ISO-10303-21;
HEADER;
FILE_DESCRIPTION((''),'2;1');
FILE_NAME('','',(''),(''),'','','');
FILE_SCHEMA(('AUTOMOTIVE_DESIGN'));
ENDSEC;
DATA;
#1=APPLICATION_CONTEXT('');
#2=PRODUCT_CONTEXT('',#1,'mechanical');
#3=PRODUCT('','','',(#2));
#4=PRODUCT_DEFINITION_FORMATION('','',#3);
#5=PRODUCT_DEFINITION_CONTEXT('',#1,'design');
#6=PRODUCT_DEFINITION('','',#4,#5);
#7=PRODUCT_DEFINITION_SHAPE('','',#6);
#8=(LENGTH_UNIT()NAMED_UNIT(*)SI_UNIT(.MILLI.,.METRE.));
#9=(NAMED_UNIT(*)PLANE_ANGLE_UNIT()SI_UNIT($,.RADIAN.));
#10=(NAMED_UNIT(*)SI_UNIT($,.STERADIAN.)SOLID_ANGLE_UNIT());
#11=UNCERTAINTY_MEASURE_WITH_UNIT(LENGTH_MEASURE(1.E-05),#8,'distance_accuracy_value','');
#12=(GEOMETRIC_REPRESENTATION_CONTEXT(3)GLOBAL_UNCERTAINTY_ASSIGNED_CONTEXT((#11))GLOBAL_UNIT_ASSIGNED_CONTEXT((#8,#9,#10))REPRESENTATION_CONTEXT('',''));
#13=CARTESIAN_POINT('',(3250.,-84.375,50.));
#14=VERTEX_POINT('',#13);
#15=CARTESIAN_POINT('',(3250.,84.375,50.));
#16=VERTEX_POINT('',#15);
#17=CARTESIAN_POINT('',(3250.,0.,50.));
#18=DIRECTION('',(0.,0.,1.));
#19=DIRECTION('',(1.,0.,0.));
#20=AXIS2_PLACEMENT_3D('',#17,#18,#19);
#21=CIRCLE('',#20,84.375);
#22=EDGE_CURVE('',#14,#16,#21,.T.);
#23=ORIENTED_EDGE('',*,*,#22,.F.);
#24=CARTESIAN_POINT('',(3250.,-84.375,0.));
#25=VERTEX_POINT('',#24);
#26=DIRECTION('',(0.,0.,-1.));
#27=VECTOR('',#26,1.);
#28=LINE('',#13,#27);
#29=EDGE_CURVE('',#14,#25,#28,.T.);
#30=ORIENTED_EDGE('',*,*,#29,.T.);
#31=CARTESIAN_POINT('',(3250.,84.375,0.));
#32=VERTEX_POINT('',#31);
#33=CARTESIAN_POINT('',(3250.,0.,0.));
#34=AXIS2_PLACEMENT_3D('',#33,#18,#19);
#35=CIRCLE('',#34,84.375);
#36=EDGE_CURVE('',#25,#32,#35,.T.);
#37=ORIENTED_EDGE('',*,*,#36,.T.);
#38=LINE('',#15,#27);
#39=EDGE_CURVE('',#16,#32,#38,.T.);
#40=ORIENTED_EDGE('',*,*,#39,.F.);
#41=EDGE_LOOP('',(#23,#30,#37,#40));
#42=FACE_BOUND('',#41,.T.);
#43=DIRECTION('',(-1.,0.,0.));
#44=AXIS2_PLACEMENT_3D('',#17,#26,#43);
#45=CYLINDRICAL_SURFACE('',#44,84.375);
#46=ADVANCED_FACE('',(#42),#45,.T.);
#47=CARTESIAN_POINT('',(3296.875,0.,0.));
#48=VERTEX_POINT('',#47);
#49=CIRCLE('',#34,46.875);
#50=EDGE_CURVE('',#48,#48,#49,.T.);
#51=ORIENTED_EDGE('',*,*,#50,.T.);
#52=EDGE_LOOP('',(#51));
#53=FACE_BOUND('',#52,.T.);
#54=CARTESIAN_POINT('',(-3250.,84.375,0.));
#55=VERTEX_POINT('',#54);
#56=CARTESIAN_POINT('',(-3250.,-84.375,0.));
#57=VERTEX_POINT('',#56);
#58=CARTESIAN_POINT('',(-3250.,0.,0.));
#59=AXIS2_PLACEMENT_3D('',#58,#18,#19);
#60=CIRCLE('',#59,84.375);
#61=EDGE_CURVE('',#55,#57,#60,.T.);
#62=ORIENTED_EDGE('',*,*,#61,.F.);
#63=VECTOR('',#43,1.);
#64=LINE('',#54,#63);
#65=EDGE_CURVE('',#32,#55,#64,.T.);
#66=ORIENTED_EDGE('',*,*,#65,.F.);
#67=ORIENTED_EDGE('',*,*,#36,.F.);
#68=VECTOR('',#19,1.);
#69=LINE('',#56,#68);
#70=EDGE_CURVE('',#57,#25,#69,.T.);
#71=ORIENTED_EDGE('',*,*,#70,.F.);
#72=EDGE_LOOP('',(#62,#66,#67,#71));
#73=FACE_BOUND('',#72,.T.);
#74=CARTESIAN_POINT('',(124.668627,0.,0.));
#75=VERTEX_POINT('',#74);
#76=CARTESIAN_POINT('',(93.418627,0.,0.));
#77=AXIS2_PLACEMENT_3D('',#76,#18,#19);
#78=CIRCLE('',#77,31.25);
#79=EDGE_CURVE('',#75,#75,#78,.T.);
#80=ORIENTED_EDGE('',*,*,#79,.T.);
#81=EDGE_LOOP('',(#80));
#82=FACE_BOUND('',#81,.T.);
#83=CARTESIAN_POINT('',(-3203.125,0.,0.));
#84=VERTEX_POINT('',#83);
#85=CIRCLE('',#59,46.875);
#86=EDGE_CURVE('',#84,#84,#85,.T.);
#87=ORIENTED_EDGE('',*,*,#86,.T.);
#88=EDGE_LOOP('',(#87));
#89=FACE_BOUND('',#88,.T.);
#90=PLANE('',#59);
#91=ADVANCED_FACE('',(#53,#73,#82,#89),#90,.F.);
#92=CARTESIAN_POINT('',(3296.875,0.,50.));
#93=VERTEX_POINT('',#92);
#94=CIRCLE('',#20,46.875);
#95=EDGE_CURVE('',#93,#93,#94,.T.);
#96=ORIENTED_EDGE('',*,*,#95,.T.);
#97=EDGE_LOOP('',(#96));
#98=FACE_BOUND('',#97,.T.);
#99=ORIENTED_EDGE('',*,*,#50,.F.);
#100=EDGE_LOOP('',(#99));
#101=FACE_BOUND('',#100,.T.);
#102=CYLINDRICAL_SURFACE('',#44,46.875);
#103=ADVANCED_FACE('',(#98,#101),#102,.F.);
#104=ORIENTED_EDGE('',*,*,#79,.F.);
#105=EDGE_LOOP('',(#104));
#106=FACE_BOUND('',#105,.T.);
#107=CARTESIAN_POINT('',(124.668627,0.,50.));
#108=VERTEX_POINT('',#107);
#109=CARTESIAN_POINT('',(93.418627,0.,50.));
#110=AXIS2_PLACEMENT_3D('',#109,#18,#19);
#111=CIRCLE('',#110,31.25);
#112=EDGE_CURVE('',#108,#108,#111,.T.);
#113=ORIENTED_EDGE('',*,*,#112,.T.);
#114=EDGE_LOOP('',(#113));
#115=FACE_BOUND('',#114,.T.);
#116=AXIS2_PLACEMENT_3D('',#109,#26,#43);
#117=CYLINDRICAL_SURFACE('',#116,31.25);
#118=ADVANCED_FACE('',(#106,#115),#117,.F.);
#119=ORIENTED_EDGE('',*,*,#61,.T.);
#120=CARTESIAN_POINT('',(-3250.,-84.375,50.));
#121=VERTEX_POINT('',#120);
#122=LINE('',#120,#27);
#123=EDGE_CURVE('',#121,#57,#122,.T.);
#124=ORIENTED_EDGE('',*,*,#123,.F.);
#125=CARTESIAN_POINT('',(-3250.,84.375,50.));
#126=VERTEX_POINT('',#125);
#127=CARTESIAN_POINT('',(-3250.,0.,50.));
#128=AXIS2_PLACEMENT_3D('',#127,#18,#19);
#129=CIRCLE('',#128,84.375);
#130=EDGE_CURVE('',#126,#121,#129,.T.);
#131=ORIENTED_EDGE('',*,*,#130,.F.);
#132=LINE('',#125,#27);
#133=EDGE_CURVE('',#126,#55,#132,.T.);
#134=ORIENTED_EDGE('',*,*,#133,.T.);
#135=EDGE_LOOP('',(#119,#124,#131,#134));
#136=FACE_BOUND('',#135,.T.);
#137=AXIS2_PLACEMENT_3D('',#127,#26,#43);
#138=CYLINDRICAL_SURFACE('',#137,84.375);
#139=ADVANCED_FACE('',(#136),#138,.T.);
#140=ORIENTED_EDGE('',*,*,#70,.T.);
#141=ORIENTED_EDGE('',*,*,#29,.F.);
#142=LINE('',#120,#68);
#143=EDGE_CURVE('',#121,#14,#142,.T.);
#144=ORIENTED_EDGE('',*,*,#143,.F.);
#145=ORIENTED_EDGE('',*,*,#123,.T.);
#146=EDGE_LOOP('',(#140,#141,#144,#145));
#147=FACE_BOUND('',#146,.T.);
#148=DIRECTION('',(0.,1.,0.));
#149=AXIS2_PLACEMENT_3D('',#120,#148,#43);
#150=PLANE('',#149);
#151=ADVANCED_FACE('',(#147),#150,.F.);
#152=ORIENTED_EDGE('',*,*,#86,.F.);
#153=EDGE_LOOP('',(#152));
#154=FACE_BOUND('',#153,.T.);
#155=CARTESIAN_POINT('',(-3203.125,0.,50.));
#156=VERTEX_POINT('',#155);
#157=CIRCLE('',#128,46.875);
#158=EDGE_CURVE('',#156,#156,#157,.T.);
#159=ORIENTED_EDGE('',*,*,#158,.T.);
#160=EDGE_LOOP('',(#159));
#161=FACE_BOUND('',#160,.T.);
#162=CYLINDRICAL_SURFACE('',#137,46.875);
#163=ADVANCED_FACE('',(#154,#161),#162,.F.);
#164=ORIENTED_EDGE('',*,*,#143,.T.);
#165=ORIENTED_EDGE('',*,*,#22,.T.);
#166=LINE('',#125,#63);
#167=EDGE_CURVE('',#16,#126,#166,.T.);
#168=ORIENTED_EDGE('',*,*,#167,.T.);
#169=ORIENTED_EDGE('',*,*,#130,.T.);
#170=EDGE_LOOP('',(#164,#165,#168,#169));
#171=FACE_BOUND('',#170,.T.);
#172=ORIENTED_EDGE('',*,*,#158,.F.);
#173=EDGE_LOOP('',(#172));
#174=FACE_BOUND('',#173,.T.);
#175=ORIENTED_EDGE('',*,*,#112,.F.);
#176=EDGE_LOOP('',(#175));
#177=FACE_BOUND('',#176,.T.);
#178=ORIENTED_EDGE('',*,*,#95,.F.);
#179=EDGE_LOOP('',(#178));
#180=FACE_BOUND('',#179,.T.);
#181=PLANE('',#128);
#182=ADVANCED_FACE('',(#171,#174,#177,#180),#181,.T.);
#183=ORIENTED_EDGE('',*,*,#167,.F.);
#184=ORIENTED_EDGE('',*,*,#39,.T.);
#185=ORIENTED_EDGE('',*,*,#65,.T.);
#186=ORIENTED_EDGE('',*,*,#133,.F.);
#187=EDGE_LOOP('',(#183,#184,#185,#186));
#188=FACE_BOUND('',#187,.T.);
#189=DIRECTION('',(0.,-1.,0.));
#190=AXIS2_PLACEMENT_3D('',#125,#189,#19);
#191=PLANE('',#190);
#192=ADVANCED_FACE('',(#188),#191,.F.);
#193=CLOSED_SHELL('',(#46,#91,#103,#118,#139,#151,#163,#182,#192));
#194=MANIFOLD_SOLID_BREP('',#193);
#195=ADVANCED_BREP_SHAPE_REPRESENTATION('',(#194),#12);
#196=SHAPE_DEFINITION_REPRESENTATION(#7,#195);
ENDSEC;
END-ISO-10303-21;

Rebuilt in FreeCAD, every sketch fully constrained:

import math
import FreeCAD as App
import Part
import Sketcher
from FreeCAD import Vector
Q = App.Units.Quantity

doc = App.newDocument("Part")
body = doc.addObject("PartDesign::Body", "Body")

# Sketch on XY plane
sketch1 = body.newObject("Sketcher::SketchObject", "Sketch")
sketch1.AttachmentSupport = (doc.getObject("XY_Plane"), [""])
sketch1.MapMode = "FlatFace"
sketch1.addGeometry([
    Part.LineSegment(Vector(3250, 84.375, 0), Vector(-3250, 84.375, 0)),  # 0
    Part.ArcOfCircle(Part.Circle(Vector(-3250, 0, 0), Vector(0, 0, 1), 84.375), math.radians(90), math.radians(270)),  # 1
    Part.LineSegment(Vector(-3250, -84.375, 0), Vector(3250, -84.375, 0)),  # 2
    Part.ArcOfCircle(Part.Circle(Vector(3250, 0, 0), Vector(0, 0, 1), 84.375), math.radians(-90), math.radians(90)),  # 3
    Part.Circle(Vector(3250, 0, 0), Vector(0, 0, 1), 46.875),  # 4
    Part.Circle(Vector(93.418627, 0, 0), Vector(0, 0, 1), 31.25),  # 5
    Part.Circle(Vector(-3250, 0, 0), Vector(0, 0, 1), 46.875),  # 6
], False)
sketch1.addConstraint([
    Sketcher.Constraint("Tangent", 0, 2, 1, 1),
    Sketcher.Constraint("Tangent", 1, 2, 2, 1),
    Sketcher.Constraint("Tangent", 2, 2, 3, 1),
    Sketcher.Constraint("Tangent", 3, 2, 0, 1),
    Sketcher.Constraint("Horizontal", 0),
    Sketcher.Constraint("Horizontal", 2),
    Sketcher.Constraint("Coincident", 4, 3, 3, 3),
    Sketcher.Constraint("Coincident", 6, 3, 1, 3),
    Sketcher.Constraint("Equal", 4, 6),
    Sketcher.Constraint("Symmetric", 1, 3, 3, 3, -1, 1),
    Sketcher.Constraint("PointOnObject", 5, 3, -1),
    Sketcher.Constraint("Diameter", 5, Q("62.5 mm")),
    Sketcher.Constraint("Diameter", 4, Q("93.75 mm")),
    Sketcher.Constraint("DistanceX", 0, 2, 0, 1, Q("6500 mm")),
    Sketcher.Constraint("Radius", 1, Q("84.375 mm")),
    Sketcher.Constraint("DistanceX", -1, 1, 5, 3, Q("93.418627 mm")),
])
pad1 = body.newObject("PartDesign::Pad", "Pad")
pad1.Profile = sketch1
pad1.Length = 50

doc.recompute()
